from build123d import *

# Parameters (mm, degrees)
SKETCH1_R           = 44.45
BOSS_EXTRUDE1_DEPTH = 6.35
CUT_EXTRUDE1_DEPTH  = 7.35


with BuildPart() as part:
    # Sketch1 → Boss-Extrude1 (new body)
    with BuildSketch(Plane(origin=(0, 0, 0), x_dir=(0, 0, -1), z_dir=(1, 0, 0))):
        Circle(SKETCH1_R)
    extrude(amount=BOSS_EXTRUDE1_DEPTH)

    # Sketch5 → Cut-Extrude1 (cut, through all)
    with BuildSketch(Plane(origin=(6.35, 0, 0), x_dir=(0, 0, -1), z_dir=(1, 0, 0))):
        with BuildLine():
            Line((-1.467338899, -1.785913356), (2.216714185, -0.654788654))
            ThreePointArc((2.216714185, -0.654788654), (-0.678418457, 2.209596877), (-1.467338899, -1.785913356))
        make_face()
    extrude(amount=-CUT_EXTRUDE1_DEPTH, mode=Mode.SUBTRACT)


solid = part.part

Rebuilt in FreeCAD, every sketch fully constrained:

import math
import FreeCAD as App
import Part
import Sketcher
from FreeCAD import Vector
Q = App.Units.Quantity

doc = App.newDocument("Part")
body = doc.addObject("PartDesign::Body", "Body")

sketch1 = body.newObject("Sketcher::SketchObject", "Sketch")
sketch1.AttachmentSupport = (doc.getObject("YZ_Plane"), [""])
sketch1.MapMode = "FlatFace"
sketch1.addGeometry(Part.Circle(Vector(0, 0, 0), Vector(0, 0, 1), 44), False)
sketch1.addConstraint(Sketcher.Constraint("Coincident", 0, 3, -1, 1))
sketch1.addConstraint(Sketcher.Constraint("Diameter", 0, Q("3.5 in")))
pad1 = body.newObject("PartDesign::Pad", "Pad")
pad1.Profile = sketch1
pad1.Length = Q("0.25 in")

sketch2 = body.newObject("Sketcher::SketchObject", "Sketch001")
sketch2.AttachmentSupport = (doc.getObject("YZ_Plane"), [""])
sketch2.MapMode = "FlatFace"
sketch2.AttachmentOffset = App.Placement(Vector(0, 0, 0.25 * 25.4), App.Rotation())
sketch2.addGeometry(Part.LineSegment(Vector(-1.8, 1.5, 0), Vector(-0.7, -2.2, 0)), False)
sketch2.addGeometry(Part.ArcOfCircle(Part.Circle(Vector(0, 0, 0), Vector(0, 0, 1), 2.3), math.radians(-106), math.radians(141)), False)
sketch2.addConstraint(Sketcher.Constraint("Coincident", 0, 1, 1, 2))
sketch2.addConstraint(Sketcher.Constraint("Coincident", 1, 1, 0, 2))
sketch2.addConstraint(Sketcher.Constraint("Coincident", 1, 3, -1, 1))
sketch2.addConstraint(Sketcher.Constraint("Radius", 1, Q("0.091 in")))
sketch2.addConstraint(Sketcher.Constraint("Distance", 0, Q("3.853789 mm")))
sketch2.addConstraint(Sketcher.Constraint("DistanceY", -1, 1, 0, 1, Q("1.467339 mm")))
pocket1 = body.newObject("PartDesign::Pocket", "Pocket")
pocket1.Profile = sketch2
pocket1.Type = "ThroughAll"

doc.recompute()
